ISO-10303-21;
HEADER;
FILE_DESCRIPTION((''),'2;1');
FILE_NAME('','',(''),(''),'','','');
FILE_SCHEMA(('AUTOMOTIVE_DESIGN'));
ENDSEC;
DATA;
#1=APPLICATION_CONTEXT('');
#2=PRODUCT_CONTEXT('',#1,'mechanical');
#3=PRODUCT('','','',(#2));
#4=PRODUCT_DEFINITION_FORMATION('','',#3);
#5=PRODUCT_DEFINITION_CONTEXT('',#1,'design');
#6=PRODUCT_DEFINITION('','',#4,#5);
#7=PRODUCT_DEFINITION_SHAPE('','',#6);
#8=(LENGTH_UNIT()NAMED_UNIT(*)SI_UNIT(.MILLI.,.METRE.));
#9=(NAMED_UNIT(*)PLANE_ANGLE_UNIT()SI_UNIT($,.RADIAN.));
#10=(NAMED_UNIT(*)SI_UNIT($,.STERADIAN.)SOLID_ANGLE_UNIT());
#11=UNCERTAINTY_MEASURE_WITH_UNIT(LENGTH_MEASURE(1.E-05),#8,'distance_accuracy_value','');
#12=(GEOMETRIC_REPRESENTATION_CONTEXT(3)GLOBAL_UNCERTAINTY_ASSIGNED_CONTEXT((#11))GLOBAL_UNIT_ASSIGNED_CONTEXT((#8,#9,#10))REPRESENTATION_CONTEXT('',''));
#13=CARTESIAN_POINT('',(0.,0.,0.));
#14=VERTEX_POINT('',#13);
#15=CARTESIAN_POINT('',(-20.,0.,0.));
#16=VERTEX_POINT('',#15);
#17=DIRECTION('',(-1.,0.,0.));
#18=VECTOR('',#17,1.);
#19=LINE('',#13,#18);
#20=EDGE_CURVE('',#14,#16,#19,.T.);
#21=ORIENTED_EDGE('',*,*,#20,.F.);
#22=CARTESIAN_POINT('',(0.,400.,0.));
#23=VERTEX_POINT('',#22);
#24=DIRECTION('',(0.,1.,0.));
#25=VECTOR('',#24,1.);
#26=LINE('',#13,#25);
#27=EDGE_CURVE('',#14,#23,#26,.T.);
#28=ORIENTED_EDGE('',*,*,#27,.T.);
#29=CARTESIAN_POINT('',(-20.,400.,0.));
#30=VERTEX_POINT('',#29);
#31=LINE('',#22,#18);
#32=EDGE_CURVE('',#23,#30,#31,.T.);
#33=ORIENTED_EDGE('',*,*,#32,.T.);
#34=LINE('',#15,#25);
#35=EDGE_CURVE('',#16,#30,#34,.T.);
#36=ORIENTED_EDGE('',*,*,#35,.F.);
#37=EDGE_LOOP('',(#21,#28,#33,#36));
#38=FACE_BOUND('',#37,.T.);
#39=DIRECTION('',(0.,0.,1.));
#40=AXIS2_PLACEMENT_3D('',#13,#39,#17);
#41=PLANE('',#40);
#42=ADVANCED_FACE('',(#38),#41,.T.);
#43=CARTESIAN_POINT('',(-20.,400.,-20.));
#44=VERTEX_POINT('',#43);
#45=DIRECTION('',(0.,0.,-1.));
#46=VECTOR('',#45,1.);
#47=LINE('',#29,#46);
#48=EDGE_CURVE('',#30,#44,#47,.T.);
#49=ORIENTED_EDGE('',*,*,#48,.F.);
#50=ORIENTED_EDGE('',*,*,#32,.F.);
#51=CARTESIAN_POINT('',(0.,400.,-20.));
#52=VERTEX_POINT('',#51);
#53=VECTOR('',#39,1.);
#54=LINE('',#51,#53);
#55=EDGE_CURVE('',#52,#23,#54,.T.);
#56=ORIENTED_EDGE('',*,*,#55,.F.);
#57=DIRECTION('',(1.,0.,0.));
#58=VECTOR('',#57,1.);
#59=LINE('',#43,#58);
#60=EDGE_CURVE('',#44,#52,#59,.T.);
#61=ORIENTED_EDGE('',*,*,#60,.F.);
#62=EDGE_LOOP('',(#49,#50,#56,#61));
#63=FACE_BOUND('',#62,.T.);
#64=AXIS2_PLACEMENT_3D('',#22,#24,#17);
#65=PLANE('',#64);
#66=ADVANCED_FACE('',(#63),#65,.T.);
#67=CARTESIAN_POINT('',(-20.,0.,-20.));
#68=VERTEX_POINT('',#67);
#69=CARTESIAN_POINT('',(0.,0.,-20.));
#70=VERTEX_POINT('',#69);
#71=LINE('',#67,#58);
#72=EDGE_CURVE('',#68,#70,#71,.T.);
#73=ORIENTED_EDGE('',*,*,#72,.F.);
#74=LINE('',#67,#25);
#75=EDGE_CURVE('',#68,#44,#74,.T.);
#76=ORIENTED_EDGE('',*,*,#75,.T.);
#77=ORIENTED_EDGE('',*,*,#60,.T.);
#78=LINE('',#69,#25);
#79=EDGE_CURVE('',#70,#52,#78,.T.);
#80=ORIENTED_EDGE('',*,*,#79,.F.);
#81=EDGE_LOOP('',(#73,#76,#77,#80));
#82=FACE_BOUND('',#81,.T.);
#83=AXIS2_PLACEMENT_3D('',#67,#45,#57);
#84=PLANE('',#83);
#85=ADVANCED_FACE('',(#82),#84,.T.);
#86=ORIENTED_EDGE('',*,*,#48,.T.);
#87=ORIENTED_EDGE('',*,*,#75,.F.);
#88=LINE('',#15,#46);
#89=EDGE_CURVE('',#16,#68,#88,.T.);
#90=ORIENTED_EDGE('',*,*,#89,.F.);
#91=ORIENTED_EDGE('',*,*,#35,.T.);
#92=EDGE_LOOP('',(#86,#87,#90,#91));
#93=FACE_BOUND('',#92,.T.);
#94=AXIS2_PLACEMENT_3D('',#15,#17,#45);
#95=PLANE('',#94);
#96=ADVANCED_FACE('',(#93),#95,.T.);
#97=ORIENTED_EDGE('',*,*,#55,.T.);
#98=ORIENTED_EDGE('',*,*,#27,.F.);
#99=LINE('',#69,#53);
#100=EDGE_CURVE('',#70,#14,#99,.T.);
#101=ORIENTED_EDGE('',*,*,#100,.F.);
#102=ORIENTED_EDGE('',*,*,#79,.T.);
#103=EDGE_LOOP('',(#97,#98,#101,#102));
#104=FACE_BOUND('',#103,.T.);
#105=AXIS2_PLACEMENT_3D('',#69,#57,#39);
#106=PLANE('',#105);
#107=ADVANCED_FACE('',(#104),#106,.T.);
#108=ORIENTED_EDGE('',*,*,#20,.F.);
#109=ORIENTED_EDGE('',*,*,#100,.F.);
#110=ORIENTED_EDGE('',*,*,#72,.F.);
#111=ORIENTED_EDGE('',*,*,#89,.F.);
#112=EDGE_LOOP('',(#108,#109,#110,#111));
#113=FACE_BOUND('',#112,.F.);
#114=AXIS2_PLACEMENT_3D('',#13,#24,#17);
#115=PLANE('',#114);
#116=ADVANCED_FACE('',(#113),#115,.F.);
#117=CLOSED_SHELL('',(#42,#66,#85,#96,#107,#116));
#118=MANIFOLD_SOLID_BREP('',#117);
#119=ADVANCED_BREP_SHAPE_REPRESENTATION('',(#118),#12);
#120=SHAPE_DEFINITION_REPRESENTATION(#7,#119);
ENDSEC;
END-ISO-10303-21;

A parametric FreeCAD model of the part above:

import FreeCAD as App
import Part
import Sketcher

V = App.Vector
Q = App.Units.Quantity


def add_polygon(sketch, points):
    """Adds a closed chain of lines whose ends are joined by coincident constraints."""
    first, n = sketch.GeometryCount, len(points)
    for a, b in zip(points, points[1:] + points[:1]):
        sketch.addGeometry(Part.LineSegment(App.Vector(*a, 0), App.Vector(*b, 0)), False)
    for i in range(n):
        sketch.addConstraint(Sketcher.Constraint("Coincident", first + i, 2, first + (i + 1) % n, 1))

doc = App.newDocument("Part")
body = doc.addObject("PartDesign::Body", "Body")

# Sketch on XZ plane
sketch1 = body.newObject("Sketcher::SketchObject", "Sketch")
sketch1.AttachmentSupport = (doc.getObject("XZ_Plane"), [""])
sketch1.MapMode = "FlatFace"
add_polygon(sketch1, [(-20, 0), (0, 0), (0, -20), (-20, -20)])  # lines 0-3
sketch1.addConstraint(Sketcher.Constraint("Horizontal", 0))
sketch1.addConstraint(Sketcher.Constraint("Vertical", 1))
sketch1.addConstraint(Sketcher.Constraint("Horizontal", 2))
sketch1.addConstraint(Sketcher.Constraint("Vertical", 3))
sketch1.addConstraint(Sketcher.Constraint("Coincident", 0, 2, -1, 1))
sketch1.addConstraint(Sketcher.Constraint("Equal", 2, 1))
sketch1.addConstraint(Sketcher.Constraint("DistanceX", 0, 1, 0, 2, Q("20 mm")))
pad1 = body.newObject("PartDesign::Pad", "Pad")
pad1.Profile = sketch1
pad1.Length = 400
pad1.Reversed = True

doc.recompute()
